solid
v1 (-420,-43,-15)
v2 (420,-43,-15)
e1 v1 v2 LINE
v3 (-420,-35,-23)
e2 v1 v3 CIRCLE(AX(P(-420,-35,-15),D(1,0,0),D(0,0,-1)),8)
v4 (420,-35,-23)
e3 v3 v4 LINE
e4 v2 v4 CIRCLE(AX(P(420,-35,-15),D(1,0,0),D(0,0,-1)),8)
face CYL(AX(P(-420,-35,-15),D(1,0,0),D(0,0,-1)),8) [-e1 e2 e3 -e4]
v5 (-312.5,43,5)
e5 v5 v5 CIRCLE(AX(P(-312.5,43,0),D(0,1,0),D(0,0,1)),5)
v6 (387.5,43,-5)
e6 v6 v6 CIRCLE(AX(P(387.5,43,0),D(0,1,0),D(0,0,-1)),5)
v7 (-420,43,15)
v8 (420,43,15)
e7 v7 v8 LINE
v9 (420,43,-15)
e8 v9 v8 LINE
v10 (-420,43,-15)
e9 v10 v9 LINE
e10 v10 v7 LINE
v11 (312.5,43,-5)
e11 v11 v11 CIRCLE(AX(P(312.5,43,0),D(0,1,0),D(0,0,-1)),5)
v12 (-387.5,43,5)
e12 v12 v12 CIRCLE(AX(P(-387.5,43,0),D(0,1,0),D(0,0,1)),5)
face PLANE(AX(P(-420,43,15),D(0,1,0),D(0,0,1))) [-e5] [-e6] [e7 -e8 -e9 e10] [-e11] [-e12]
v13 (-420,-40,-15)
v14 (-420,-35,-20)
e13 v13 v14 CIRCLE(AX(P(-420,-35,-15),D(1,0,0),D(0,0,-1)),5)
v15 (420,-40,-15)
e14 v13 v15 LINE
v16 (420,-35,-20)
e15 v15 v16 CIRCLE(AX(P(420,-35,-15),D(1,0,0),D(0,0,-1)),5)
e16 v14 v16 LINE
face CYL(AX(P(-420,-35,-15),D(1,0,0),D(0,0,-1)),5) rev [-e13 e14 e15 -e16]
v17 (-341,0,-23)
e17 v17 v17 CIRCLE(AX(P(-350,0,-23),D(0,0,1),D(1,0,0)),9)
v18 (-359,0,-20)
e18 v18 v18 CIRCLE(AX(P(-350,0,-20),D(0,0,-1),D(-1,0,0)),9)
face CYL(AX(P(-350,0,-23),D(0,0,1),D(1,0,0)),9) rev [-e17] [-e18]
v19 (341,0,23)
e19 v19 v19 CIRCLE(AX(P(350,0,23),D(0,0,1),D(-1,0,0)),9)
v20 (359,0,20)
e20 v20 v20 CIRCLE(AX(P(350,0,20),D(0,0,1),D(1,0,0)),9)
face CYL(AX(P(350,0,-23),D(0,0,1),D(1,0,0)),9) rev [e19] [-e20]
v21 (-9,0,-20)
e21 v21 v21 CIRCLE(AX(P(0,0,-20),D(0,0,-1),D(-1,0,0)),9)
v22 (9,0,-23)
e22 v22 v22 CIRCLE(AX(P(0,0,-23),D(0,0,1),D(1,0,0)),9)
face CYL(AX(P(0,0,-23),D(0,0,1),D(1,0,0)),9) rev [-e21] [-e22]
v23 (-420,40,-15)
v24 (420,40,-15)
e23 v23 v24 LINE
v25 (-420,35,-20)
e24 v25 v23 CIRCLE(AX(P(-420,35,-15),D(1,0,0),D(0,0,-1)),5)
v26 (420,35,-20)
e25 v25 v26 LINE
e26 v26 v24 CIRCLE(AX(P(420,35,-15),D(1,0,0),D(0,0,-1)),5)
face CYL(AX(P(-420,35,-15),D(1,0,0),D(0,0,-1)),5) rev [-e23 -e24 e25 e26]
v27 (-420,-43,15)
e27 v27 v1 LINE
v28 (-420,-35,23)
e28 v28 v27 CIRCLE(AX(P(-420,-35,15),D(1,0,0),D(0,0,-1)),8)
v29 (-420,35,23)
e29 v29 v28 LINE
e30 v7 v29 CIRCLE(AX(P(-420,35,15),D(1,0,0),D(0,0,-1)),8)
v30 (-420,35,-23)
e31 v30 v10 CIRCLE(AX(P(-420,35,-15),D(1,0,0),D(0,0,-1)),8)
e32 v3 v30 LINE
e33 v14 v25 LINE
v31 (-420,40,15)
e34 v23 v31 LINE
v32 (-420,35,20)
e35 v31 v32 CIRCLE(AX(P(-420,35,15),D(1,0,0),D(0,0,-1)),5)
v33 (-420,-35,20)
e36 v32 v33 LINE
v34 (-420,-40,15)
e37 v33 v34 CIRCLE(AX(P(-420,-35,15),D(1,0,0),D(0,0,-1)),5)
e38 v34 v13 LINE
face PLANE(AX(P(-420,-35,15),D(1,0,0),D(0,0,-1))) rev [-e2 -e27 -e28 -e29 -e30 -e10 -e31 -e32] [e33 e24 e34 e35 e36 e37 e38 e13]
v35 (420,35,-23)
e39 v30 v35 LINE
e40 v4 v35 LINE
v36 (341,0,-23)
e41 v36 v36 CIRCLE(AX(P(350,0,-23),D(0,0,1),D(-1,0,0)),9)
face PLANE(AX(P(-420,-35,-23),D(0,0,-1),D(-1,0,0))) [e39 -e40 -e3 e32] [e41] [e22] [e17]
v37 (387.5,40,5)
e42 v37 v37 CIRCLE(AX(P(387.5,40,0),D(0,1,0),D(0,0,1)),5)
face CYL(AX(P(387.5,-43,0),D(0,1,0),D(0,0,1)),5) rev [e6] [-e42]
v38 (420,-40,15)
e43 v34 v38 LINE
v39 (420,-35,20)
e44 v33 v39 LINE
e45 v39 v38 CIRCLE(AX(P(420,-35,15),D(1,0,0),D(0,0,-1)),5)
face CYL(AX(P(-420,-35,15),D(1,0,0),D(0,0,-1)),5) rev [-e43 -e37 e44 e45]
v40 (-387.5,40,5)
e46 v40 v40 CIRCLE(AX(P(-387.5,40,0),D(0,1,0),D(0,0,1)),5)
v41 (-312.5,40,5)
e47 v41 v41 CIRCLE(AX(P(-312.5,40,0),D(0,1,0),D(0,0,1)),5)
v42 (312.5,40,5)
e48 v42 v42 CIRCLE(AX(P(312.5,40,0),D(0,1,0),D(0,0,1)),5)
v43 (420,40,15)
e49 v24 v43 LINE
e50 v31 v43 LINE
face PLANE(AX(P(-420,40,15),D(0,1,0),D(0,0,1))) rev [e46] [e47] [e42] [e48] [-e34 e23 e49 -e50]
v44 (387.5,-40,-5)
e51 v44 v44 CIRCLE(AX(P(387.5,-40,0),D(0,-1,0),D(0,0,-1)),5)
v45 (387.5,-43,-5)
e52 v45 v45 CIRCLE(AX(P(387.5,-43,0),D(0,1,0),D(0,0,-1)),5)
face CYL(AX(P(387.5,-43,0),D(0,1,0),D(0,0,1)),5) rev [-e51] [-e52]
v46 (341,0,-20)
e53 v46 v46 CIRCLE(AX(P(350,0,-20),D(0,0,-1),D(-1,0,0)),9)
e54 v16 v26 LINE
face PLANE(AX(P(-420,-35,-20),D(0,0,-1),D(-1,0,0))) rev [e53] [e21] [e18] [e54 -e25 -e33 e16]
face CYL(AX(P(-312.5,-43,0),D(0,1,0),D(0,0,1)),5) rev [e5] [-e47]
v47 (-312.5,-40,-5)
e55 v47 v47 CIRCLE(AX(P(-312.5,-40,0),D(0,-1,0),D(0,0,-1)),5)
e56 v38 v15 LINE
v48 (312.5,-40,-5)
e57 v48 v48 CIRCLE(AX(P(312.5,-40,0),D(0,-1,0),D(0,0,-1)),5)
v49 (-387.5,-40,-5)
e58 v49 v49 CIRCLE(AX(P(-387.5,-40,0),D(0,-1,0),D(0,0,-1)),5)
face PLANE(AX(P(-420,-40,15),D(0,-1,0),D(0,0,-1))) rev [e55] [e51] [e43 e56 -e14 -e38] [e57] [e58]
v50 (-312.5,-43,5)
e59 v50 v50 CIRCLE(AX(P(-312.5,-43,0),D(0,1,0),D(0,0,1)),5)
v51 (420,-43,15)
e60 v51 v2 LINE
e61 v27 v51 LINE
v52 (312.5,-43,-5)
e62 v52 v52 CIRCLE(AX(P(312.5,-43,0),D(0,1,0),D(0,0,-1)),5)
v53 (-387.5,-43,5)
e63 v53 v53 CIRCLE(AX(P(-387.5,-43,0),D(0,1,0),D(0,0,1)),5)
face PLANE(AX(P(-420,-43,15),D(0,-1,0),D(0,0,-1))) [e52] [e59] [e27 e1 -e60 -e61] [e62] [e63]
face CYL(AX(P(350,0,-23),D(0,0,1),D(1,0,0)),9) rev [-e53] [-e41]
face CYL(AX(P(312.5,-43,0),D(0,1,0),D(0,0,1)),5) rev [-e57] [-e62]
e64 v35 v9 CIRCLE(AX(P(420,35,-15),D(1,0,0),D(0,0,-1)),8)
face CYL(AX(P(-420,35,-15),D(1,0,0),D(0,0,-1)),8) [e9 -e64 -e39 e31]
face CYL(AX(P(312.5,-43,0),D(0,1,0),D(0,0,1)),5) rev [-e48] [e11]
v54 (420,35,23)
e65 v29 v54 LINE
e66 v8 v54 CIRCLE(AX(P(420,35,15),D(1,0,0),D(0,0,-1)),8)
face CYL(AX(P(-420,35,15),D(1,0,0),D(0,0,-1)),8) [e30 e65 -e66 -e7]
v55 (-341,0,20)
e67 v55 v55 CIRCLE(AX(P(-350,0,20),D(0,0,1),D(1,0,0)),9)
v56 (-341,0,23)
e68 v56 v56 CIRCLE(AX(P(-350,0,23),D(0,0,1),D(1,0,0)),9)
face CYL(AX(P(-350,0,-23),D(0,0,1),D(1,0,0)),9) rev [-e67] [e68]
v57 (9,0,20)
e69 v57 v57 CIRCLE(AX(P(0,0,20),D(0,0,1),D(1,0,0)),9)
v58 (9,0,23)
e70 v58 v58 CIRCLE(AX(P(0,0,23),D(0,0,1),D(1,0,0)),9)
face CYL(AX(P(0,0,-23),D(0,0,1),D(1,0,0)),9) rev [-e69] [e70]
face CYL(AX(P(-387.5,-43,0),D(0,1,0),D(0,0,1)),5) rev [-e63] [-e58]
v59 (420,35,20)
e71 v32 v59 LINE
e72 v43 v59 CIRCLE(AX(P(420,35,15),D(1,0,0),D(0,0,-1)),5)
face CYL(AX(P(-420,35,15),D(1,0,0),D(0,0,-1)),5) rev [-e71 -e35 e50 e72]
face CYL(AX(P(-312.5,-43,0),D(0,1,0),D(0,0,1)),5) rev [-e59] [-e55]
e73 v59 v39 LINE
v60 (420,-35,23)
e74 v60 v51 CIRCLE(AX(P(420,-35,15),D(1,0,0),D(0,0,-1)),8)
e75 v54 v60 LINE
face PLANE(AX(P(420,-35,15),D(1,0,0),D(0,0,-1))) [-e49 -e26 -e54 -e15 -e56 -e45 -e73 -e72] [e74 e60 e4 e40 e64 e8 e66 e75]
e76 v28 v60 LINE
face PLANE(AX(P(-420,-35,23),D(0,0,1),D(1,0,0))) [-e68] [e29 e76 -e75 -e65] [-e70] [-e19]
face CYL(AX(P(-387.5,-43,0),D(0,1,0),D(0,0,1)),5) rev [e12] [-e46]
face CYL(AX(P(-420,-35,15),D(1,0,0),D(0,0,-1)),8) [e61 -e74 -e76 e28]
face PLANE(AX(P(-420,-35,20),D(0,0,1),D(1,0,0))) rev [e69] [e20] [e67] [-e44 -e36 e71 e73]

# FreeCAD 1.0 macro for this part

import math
import FreeCAD as App
import Part
import Sketcher

V = App.Vector
Q = App.Units.Quantity

doc = App.newDocument("Part")
body = doc.addObject("PartDesign::Body", "Body")

# Sketch on YZ plane
sketch1 = body.newObject("Sketcher::SketchObject", "Sketch")
sketch1.AttachmentSupport = (doc.getObject("YZ_Plane"), [""])
sketch1.MapMode = "FlatFace"
sketch1.addGeometry([
    Part.LineSegment(V(35, 23, 0), V(-35, 23, 0)),  # 0
    Part.ArcOfCircle(Part.Circle(V(-35, 15, 0), V(0, 0, 1), 8), math.radians(90), math.radians(180)),  # 1
    Part.LineSegment(V(-43, 15, 0), V(-43, -15, 0)),  # 2
    Part.ArcOfCircle(Part.Circle(V(-35, -15, 0), V(0, 0, 1), 8), math.radians(-180), math.radians(-90)),  # 3
    Part.LineSegment(V(-35, -23, 0), V(35, -23, 0)),  # 4
    Part.ArcOfCircle(Part.Circle(V(35, -15, 0), V(0, 0, 1), 8), math.radians(-90), math.radians(0)),  # 5
    Part.LineSegment(V(43, -15, 0), V(43, 15, 0)),  # 6
    Part.ArcOfCircle(Part.Circle(V(35, 15, 0), V(0, 0, 1), 8), math.radians(0), math.radians(90)),  # 7
    Part.LineSegment(V(-35, 20, 0), V(35, 20, 0)),  # 8
    Part.ArcOfCircle(Part.Circle(V(35, 15, 0), V(0, 0, 1), 5), math.radians(0), math.radians(90)),  # 9
    Part.LineSegment(V(40, 15, 0), V(40, -15, 0)),  # 10
    Part.ArcOfCircle(Part.Circle(V(35, -15, 0), V(0, 0, 1), 5), math.radians(-90), math.radians(0)),  # 11
    Part.LineSegment(V(35, -20, 0), V(-35, -20, 0)),  # 12
    Part.ArcOfCircle(Part.Circle(V(-35, -15, 0), V(0, 0, 1), 5), math.radians(180), math.radians(270)),  # 13
    Part.LineSegment(V(-40, -15, 0), V(-40, 15, 0)),  # 14
    Part.ArcOfCircle(Part.Circle(V(-35, 15, 0), V(0, 0, 1), 5), math.radians(90), math.radians(180)),  # 15
], False)
sketch1.addConstraint([
    Sketcher.Constraint("Tangent", 0, 2, 1, 1),
    Sketcher.Constraint("Tangent", 1, 2, 2, 1),
    Sketcher.Constraint("Tangent", 2, 2, 3, 1),
    Sketcher.Constraint("Tangent", 3, 2, 4, 1),
    Sketcher.Constraint("Tangent", 4, 2, 5, 1),
    Sketcher.Constraint("Tangent", 5, 2, 6, 1),
    Sketcher.Constraint("Tangent", 6, 2, 7, 1),
    Sketcher.Constraint("Tangent", 7, 2, 0, 1),
    Sketcher.Constraint("Tangent", 8, 2, 9, 2),
    Sketcher.Constraint("Tangent", 9, 1, 10, 1),
    Sketcher.Constraint("Tangent", 10, 2, 11, 2),
    Sketcher.Constraint("Tangent", 11, 1, 12, 1),
    Sketcher.Constraint("Tangent", 12, 2, 13, 2),
    Sketcher.Constraint("Tangent", 13, 1, 14, 1),
    Sketcher.Constraint("Tangent", 14, 2, 15, 2),
    Sketcher.Constraint("Tangent", 15, 1, 8, 1),
    Sketcher.Constraint("Horizontal", 0),
    Sketcher.Constraint("Vertical", 2),
    Sketcher.Constraint("Horizontal", 4),
    Sketcher.Constraint("Vertical", 6),
    Sketcher.Constraint("Horizontal", 8),
    Sketcher.Constraint("Vertical", 10),
    Sketcher.Constraint("Horizontal", 12),
    Sketcher.Constraint("Vertical", 14),
    Sketcher.Constraint("Coincident", 9, 3, 7, 3),
    Sketcher.Constraint("Coincident", 11, 3, 5, 3),
    Sketcher.Constraint("Coincident", 13, 3, 3, 3),
    Sketcher.Constraint("Equal", 1, 3),
    Sketcher.Constraint("Equal", 3, 5),
    Sketcher.Constraint("Equal", 5, 7),
    Sketcher.Constraint("Equal", 13, 15),
    Sketcher.Constraint("Symmetric", 1, 3, 5, 3, -1, 1),
    Sketcher.Constraint("Radius", 1, Q("8 mm")),
    Sketcher.Constraint("Radius", 9, Q("5 mm")),
    Sketcher.Constraint("DistanceX", 0, 2, 0, 1, Q("70 mm")),
    Sketcher.Constraint("DistanceY", 2, 2, 2, 1, Q("30 mm")),
])
pad1 = body.newObject("PartDesign::Pad", "Pad")
pad1.Profile = sketch1
pad1.Type = "TwoLengths"
pad1.Length = 420
pad1.Length2 = 420

# Sketch on XY plane
sketch2 = body.newObject("Sketcher::SketchObject", "Sketch001")
sketch2.AttachmentSupport = (doc.getObject("XY_Plane"), [""])
sketch2.MapMode = "FlatFace"
sketch2.addGeometry([
    Part.Circle(V(0, 0, 0), V(0, 0, 1), 9),
    Part.Circle(V(-350, 0, 0), V(0, 0, 1), 9),
    Part.Circle(V(350, 0, 0), V(0, 0, 1), 9),
], False)
sketch2.addConstraint([
    Sketcher.Constraint("Coincident", 0, 3, -1, 1),
    Sketcher.Constraint("Equal", 0, 1),
    Sketcher.Constraint("Equal", 1, 2),
    Sketcher.Constraint("Symmetric", 1, 3, 2, 3, -1, 1),
    Sketcher.Constraint("PointOnObject", 1, 3, -1),
    Sketcher.Constraint("Diameter", 0, Q("18 mm")),
    Sketcher.Constraint("DistanceX", 1, 3, -1, 1, Q("350 mm")),
])
pocket1 = body.newObject("PartDesign::Pocket", "Pocket")
pocket1.Profile = sketch2
pocket1.Type = "ThroughAll"
pocket1.Midplane = True

# Sketch on XZ plane
sketch3 = body.newObject("Sketcher::SketchObject", "Sketch002")
sketch3.AttachmentSupport = (doc.getObject("XZ_Plane"), [""])
sketch3.MapMode = "FlatFace"
sketch3.addGeometry([
    Part.Circle(V(-387.5, 0, 0), V(0, 0, 1), 5),
    Part.Circle(V(-312.5, 0, 0), V(0, 0, 1), 5),
    Part.Circle(V(312.5, 0, 0), V(0, 0, 1), 5),
    Part.Circle(V(387.5, 0, 0), V(0, 0, 1), 5),
], False)
sketch3.addConstraint([
    Sketcher.Constraint("Equal", 0, 1),
    Sketcher.Constraint("Equal", 1, 2),
    Sketcher.Constraint("Equal", 2, 3),
    Sketcher.Constraint("Symmetric", 1, 3, 2, 3, -1, 1),
    Sketcher.Constraint("Symmetric", 0, 3, 3, 3, -1, 1),
    Sketcher.Constraint("PointOnObject", 0, 3, -1),
    Sketcher.Constraint("PointOnObject", 1, 3, -1),
    Sketcher.Constraint("Diameter", 0, Q("10 mm")),
    Sketcher.Constraint("DistanceX", 0, 3, 1, 3, Q("75 mm")),
    Sketcher.Constraint("DistanceX", 1, 3, 2, 3, Q("625 mm")),
])
pocket2 = body.newObject("PartDesign::Pocket", "Pocket001")
pocket2.Profile = sketch3
pocket2.Type = "ThroughAll"
pocket2.Midplane = True

doc.recompute()
